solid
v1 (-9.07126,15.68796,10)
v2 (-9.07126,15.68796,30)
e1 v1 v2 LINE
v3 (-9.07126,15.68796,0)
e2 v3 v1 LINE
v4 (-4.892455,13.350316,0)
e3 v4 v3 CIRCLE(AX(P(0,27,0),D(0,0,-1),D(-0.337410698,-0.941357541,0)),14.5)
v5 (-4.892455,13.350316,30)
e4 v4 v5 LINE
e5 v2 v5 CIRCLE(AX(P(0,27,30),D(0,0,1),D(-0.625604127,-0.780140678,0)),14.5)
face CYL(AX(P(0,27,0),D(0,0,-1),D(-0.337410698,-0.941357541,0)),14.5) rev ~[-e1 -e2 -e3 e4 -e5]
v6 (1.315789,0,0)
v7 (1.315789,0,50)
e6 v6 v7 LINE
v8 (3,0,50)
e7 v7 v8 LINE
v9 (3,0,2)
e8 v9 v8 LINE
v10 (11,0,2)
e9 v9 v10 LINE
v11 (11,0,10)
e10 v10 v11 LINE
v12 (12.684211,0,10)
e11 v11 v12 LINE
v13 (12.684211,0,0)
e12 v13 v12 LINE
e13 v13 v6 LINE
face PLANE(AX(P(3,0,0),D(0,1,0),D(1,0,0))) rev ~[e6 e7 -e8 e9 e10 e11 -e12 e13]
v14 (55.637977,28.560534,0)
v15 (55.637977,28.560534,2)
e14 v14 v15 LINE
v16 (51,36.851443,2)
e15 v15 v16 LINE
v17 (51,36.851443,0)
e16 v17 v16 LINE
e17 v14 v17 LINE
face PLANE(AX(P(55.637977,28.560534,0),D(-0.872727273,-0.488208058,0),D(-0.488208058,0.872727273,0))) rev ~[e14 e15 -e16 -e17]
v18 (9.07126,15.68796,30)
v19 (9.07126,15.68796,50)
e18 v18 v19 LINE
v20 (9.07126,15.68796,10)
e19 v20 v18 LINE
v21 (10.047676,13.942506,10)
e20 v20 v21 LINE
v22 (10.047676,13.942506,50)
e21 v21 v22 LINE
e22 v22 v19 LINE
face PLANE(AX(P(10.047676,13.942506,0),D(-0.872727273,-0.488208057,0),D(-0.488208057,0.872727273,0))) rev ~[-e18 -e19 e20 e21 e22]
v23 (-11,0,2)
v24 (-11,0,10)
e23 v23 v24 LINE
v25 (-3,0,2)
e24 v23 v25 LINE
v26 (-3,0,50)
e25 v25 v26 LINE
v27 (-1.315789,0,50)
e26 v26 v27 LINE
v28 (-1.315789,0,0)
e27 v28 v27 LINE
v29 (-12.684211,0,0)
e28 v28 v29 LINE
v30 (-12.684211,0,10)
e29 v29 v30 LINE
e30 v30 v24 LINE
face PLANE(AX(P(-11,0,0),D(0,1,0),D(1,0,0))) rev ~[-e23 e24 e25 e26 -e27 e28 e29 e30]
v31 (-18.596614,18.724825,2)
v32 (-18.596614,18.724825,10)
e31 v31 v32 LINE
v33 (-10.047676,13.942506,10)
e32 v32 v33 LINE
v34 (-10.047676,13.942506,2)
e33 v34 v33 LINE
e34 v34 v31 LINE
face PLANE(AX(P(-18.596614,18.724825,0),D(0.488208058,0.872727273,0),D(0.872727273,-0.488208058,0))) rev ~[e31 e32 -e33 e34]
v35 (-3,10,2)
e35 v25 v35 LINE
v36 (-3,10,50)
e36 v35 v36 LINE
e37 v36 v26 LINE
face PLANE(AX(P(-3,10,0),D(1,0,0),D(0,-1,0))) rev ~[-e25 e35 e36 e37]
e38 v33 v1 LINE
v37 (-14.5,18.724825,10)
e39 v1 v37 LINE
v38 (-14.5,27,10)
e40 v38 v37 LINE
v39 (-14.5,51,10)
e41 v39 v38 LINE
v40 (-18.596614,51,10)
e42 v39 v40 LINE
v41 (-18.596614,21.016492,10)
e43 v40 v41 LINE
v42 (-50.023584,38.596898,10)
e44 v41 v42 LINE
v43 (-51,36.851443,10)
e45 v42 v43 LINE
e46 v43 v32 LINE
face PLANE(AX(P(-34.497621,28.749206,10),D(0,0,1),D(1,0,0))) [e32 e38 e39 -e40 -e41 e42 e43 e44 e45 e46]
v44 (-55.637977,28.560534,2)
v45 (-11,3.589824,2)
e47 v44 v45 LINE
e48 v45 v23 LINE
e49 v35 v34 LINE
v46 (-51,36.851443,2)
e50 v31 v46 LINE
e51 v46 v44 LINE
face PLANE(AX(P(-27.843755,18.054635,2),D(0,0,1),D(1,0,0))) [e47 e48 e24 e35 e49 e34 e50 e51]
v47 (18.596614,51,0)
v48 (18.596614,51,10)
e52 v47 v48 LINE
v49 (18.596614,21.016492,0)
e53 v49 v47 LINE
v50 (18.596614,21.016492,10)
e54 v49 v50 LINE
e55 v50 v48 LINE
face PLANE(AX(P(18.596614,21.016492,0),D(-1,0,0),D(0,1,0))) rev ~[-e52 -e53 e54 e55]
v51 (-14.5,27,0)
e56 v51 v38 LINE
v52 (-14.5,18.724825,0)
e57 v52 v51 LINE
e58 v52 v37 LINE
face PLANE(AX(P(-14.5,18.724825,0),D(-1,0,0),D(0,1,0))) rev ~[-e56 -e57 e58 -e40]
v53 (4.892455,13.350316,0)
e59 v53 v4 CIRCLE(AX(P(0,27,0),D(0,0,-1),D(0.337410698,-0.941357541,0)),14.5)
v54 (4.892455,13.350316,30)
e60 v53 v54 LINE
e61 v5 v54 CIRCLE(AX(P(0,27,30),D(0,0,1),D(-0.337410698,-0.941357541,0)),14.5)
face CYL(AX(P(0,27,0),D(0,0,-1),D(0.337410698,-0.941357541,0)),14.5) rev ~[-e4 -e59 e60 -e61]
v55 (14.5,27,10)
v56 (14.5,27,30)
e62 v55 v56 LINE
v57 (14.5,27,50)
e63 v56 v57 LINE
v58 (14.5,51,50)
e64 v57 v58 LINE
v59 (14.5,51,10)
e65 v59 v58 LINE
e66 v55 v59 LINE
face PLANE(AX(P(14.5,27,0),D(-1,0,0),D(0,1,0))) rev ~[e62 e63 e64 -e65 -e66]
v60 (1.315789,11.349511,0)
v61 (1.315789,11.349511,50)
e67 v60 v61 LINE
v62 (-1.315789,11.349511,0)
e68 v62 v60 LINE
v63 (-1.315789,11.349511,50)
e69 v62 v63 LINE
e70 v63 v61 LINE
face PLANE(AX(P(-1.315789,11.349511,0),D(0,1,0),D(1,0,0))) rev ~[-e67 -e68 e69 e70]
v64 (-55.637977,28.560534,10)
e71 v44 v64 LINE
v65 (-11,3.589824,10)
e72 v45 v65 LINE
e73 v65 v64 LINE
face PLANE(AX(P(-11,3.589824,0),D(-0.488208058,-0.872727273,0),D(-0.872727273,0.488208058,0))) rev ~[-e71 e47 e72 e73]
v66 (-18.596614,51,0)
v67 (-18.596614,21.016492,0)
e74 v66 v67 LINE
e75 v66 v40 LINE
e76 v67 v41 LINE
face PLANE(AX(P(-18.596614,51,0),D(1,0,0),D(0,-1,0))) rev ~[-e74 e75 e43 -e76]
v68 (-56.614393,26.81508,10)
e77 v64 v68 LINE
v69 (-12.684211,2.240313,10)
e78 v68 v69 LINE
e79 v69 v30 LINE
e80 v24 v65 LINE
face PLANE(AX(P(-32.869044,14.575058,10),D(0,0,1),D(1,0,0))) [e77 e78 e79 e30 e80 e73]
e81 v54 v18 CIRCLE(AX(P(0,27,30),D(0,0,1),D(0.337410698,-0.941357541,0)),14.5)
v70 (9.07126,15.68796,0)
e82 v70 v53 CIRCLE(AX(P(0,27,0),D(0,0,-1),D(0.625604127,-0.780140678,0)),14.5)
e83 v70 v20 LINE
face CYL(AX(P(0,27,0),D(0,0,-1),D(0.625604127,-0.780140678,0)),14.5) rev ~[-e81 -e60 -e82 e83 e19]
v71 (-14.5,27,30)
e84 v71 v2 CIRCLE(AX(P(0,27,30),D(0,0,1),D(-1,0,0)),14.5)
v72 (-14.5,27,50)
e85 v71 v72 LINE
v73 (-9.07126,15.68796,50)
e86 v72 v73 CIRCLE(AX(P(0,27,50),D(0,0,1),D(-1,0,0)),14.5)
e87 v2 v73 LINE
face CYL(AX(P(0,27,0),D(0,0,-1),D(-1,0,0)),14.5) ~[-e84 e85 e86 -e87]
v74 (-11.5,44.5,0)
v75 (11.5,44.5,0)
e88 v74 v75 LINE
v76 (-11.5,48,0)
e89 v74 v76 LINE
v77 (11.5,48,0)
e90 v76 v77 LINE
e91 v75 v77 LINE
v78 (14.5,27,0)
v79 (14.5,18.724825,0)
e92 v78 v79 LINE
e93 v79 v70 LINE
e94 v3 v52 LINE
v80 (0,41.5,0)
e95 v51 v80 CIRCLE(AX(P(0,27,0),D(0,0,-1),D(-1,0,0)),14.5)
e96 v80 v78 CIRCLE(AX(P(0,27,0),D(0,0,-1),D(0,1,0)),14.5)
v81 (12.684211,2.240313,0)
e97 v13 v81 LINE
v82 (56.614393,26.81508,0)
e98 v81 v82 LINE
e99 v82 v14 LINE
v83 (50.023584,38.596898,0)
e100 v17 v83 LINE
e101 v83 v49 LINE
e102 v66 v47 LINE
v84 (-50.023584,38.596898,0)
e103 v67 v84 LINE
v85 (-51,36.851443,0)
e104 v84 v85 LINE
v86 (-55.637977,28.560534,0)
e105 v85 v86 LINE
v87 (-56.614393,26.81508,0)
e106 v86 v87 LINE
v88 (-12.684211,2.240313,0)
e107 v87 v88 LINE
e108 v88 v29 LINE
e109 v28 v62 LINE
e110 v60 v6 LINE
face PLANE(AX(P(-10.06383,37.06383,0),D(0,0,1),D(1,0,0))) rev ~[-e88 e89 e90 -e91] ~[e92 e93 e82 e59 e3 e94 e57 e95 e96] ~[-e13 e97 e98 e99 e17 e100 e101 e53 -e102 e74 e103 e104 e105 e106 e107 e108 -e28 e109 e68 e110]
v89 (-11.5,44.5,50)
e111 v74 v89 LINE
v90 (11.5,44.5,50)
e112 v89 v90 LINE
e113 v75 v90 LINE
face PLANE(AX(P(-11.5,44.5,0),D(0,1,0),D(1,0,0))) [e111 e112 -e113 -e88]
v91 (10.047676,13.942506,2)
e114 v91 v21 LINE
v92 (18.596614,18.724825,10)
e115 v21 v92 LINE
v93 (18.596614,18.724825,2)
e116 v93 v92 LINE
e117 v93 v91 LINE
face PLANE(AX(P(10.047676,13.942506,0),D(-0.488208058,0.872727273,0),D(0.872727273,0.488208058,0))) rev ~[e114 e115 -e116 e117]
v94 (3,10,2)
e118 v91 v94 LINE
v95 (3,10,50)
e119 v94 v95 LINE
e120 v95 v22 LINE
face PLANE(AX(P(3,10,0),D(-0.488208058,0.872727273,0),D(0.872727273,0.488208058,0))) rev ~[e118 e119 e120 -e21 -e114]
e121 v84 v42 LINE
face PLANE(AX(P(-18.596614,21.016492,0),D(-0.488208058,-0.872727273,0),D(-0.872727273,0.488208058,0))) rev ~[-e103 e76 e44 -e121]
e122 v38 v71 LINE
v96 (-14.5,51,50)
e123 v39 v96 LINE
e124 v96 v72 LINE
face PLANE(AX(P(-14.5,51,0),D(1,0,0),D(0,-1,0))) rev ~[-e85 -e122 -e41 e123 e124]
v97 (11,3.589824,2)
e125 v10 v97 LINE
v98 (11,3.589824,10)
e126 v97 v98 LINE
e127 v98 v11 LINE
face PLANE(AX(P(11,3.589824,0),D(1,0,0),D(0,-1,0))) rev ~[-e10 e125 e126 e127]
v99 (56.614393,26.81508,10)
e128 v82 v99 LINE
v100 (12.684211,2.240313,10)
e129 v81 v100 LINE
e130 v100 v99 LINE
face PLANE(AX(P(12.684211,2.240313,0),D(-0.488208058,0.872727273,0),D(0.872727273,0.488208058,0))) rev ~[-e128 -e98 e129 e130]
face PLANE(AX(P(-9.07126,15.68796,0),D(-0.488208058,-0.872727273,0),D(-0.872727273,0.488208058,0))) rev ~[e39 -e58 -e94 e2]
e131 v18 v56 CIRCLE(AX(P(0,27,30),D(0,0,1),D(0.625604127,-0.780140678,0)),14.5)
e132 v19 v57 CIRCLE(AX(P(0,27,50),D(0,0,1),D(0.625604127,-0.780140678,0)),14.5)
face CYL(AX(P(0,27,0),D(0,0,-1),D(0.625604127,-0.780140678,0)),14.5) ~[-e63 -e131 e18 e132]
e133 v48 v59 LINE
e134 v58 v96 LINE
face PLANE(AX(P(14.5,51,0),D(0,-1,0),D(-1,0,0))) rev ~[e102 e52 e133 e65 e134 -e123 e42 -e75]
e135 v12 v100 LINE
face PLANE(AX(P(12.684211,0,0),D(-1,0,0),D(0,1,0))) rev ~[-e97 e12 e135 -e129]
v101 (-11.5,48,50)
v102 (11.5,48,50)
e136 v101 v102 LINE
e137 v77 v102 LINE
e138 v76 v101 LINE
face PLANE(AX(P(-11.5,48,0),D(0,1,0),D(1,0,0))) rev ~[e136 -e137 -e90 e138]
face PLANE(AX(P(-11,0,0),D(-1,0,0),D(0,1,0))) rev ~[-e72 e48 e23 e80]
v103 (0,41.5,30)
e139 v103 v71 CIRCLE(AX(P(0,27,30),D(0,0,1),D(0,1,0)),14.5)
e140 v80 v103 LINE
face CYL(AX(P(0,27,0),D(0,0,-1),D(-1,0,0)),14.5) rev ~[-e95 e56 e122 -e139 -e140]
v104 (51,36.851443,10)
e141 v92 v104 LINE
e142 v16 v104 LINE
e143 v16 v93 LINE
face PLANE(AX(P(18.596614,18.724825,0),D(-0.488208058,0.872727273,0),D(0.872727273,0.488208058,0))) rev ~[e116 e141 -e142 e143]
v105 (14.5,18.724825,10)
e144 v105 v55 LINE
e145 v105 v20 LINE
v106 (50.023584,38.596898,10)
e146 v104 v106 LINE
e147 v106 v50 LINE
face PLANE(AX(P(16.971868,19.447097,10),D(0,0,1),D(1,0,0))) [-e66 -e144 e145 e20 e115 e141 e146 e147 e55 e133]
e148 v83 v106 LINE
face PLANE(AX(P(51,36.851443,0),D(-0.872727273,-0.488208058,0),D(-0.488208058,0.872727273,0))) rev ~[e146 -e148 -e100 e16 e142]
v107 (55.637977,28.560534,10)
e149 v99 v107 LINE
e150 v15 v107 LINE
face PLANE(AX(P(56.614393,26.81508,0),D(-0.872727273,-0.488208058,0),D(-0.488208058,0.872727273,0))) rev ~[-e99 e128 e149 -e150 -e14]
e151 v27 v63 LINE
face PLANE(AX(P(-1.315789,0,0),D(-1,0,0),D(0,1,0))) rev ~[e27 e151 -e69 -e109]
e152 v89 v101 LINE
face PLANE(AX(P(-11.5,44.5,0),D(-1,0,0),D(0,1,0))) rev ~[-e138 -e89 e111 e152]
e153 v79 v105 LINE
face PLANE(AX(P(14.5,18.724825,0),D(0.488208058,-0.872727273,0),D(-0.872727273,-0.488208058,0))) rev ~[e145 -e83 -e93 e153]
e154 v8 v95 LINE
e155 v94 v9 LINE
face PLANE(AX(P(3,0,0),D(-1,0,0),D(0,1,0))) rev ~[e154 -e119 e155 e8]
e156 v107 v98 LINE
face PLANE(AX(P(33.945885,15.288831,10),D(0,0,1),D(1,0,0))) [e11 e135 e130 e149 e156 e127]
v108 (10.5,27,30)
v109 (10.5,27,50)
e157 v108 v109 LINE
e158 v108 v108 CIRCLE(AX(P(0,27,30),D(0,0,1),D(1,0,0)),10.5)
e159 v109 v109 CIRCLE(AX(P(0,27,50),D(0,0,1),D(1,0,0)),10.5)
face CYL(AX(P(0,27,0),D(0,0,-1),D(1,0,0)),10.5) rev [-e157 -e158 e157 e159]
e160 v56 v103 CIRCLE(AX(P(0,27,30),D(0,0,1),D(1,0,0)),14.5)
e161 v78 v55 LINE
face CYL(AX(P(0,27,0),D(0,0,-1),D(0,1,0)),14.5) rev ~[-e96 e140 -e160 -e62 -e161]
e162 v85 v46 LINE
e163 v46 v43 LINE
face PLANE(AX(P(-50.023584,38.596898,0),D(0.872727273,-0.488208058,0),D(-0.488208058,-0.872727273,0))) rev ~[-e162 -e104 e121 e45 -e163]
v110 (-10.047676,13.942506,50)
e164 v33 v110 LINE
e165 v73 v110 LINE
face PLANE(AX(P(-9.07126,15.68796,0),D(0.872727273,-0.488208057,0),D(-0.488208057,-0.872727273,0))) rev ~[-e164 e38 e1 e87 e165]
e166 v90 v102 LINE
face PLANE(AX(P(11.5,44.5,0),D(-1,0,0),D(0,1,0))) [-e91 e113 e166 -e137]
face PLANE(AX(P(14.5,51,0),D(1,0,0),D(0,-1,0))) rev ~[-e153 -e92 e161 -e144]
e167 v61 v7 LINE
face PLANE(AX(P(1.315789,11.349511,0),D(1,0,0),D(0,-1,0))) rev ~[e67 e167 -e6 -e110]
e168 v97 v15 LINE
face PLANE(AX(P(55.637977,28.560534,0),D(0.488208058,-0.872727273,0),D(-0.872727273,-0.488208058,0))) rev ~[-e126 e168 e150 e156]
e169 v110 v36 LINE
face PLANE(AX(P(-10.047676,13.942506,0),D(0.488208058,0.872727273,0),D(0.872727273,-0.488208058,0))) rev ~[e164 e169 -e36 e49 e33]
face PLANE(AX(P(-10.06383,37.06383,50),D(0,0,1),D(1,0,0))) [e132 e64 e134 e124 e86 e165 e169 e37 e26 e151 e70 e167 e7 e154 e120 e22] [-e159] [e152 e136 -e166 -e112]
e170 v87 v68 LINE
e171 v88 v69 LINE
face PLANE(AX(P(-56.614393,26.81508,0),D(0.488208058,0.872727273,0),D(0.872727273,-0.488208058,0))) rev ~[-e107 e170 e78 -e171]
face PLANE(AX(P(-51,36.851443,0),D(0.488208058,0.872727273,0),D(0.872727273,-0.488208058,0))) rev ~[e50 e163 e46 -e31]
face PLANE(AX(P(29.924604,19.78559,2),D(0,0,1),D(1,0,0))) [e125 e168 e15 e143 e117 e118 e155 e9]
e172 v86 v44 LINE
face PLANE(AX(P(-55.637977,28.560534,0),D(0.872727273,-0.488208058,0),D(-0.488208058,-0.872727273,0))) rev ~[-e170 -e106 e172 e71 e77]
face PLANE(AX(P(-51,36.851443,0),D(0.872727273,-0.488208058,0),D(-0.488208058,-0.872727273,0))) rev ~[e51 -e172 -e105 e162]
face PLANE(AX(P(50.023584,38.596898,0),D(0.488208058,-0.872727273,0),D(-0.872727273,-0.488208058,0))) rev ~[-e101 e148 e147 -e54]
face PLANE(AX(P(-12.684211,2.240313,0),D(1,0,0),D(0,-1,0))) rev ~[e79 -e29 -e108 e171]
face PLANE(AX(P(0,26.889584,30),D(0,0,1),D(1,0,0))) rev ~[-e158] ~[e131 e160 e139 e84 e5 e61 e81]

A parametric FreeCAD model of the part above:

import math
import FreeCAD as App
import Part
import Sketcher
Q = App.Units.Quantity

doc = App.newDocument("Part")
params = doc.addObject("Spreadsheet::Sheet", "Params")
for row, (alias, value) in enumerate([
    ("sketch1_length", "2 mm"),
    ("pad1_length", "10 mm"),
    ("sketch2_length", "2 mm"),
    ("pad2_length", "10 mm"),
    ("sketch3_length", "2 mm"),
    ("pad3_length", "10 mm"),
    ("sketch4_length", "2 mm"),
    ("pad4_length", "10 mm"),
    ("sketch5_width", "8 mm"),
    ("sketch5_height", "10 mm"),
    ("sketch5_length", "9.5 mm"),
    ("pad5_length", "2 mm"),
    ("sketch6_width", "8 mm"),
    ("sketch6_height", "10 mm"),
    ("sketch6_length", "9.5 mm"),
    ("pad6_length", "2 mm"),
    ("sketch7_diameter", "21 mm"),
    ("sketch7_radius", "14.5 mm"),
    ("pad7_length", "50 mm"),
    ("sketch8_diameter", "21 mm"),
    ("sketch8_radius", "14.5 mm"),
    ("pocket1_length", "30 mm"),
    ("sketch9_radius", "14.5 mm"),
    ("sketch9_width", "23 mm"),
    ("sketch9_height", "24 mm"),
    ("sketch9_height2", "10 mm"),
    ("sketch9_length", "2 mm"),
    ("pad8_length", "50 mm"),
], start=1):
    params.set(f"A{row}", alias)
    params.set(f"B{row}", "=" + value)
    params.setAlias(f"B{row}", alias)

body = doc.addObject("PartDesign::Body", "Body")

# Sketch on XY plane
sketch1 = body.newObject("Sketcher::SketchObject", "Sketch")
sketch1.AttachmentSupport = (doc.getObject("XY_Plane"), [""])
sketch1.MapMode = "FlatFace"
sketch1.addGeometry([
    Part.LineSegment(App.Vector(-12.684211, 0, 0), App.Vector(-11, 0, 0)),  # 0
    Part.LineSegment(App.Vector(-11, 0, 0), App.Vector(-11, 3.589824, 0)),  # 1
    Part.LineSegment(App.Vector(-11, 3.589824, 0), App.Vector(-55.637977, 28.560534, 0)),  # 2
    Part.LineSegment(App.Vector(-55.637977, 28.560534, 0), App.Vector(-56.614393, 26.81508, 0)),  # 3
    Part.LineSegment(App.Vector(-56.614393, 26.81508, 0), App.Vector(-12.684211, 2.240313, 0)),  # 4
    Part.LineSegment(App.Vector(-12.684211, 2.240313, 0), App.Vector(-12.684211, 0, 0)),  # 5
], False)
sketch1.addConstraint([
    Sketcher.Constraint("Coincident", 0, 2, 1, 1),
    Sketcher.Constraint("Coincident", 1, 2, 2, 1),
    Sketcher.Constraint("Coincident", 2, 2, 3, 1),
    Sketcher.Constraint("Coincident", 3, 2, 4, 1),
    Sketcher.Constraint("Coincident", 4, 2, 5, 1),
    Sketcher.Constraint("Coincident", 5, 2, 0, 1),
    Sketcher.Constraint("Horizontal", 0),
    Sketcher.Constraint("Vertical", 1),
    Sketcher.Constraint("Vertical", 5),
    Sketcher.Constraint("PointOnObject", 0, 2, -1),
    Sketcher.Constraint("Perpendicular", 2, 3),
    Sketcher.Constraint("Perpendicular", 3, 4),
    Sketcher.Constraint("Distance", 3, Q("2 mm")),
    Sketcher.Constraint("DistanceX", 0, 2, -1, 1, Q("11 mm")),
    Sketcher.Constraint("DistanceX", 0, 1, 0, 2, Q("1.684211 mm")),
    Sketcher.Constraint("Distance", 2, Q("51.147681 mm")),
    Sketcher.Constraint("DistanceY", 1, 1, 1, 2, Q("3.589824 mm")),
    Sketcher.Constraint("DistanceY", 5, 2, 5, 1, Q("2.240313 mm")),
])
sketch1.setExpression("Constraints[12]", "Params.sketch1_length")
pad1 = body.newObject("PartDesign::Pad", "Pad")
pad1.Profile = sketch1
pad1.setExpression("Length", "Params.pad1_length")
body2 = doc.addObject("PartDesign::Body", "Body001")

# Sketch on XY plane
sketch2 = body2.newObject("Sketcher::SketchObject", "Sketch001")
sketch2.AttachmentSupport = (doc.getObject("XY_Plane001"), [""])
sketch2.MapMode = "FlatFace"
sketch2.addGeometry([
    Part.LineSegment(App.Vector(-51, 36.9, 0), App.Vector(-18.6, 18.7, 0)),  # 0
    Part.LineSegment(App.Vector(-18.6, 18.7, 0), App.Vector(-10, 13.9, 0)),  # 1
    Part.LineSegment(App.Vector(-10, 13.9, 0), App.Vector(-9.1, 15.7, 0)),  # 2
    Part.LineSegment(App.Vector(-9.1, 15.7, 0), App.Vector(-14.5, 18.7, 0)),  # 3
    Part.LineSegment(App.Vector(-14.5, 18.7, 0), App.Vector(-14.5, 51, 0)),  # 4
    Part.LineSegment(App.Vector(-14.5, 51, 0), App.Vector(-18.6, 51, 0)),  # 5
    Part.LineSegment(App.Vector(-18.6, 51, 0), App.Vector(-18.6, 21, 0)),  # 6
    Part.LineSegment(App.Vector(-18.6, 21, 0), App.Vector(-50, 38.6, 0)),  # 7
    Part.LineSegment(App.Vector(-50, 38.6, 0), App.Vector(-51, 36.9, 0)),  # 8
], False)
sketch2.addConstraint([
    Sketcher.Constraint("Coincident", 0, 2, 1, 1),
    Sketcher.Constraint("Coincident", 1, 2, 2, 1),
    Sketcher.Constraint("Coincident", 2, 2, 3, 1),
    Sketcher.Constraint("Coincident", 3, 2, 4, 1),
    Sketcher.Constraint("Coincident", 4, 2, 5, 1),
    Sketcher.Constraint("Coincident", 5, 2, 6, 1),
    Sketcher.Constraint("Coincident", 6, 2, 7, 1),
    Sketcher.Constraint("Coincident", 7, 2, 8, 1),
    Sketcher.Constraint("Coincident", 8, 2, 0, 1),
    Sketcher.Constraint("Vertical", 4),
    Sketcher.Constraint("Horizontal", 5),
    Sketcher.Constraint("Vertical", 6),
    Sketcher.Constraint("Parallel", 0, 1),
    Sketcher.Constraint("Perpendicular", 1, 2),
    Sketcher.Constraint("Perpendicular", 2, 3),
    Sketcher.Constraint("Parallel", 3, 7),
    Sketcher.Constraint("Perpendicular", 7, 8),
    Sketcher.Constraint("Horizontal", 0, 2, 3, 2),
    Sketcher.Constraint("Vertical", 0, 2, 5, 2),
    Sketcher.Constraint("Equal", 2, 8),
    Sketcher.Constraint("Distance", 2, Q("2 mm")),
    Sketcher.Constraint("DistanceY", -1, 1, 4, 2, Q("51 mm")),
    Sketcher.Constraint("DistanceX", 8, 2, -1, 1, Q("51 mm")),
    Sketcher.Constraint("DistanceX", 3, 2, -1, 1, Q("14.5 mm")),
    Sketcher.Constraint("DistanceY", 6, 2, 6, 1, Q("29.983508 mm")),
    Sketcher.Constraint("Distance", 0, Q("37.12888 mm")),
    Sketcher.Constraint("Distance", 1, Q("9.795658 mm")),
])
sketch2.setExpression("Constraints[20]", "Params.sketch2_length")
pad2 = body2.newObject("PartDesign::Pad", "Pad001")
pad2.Profile = sketch2
pad2.setExpression("Length", "Params.pad2_length")
body3 = doc.addObject("PartDesign::Body", "Body002")

# Sketch on XY plane
sketch3 = body3.newObject("Sketcher::SketchObject", "Sketch002")
sketch3.AttachmentSupport = (doc.getObject("XY_Plane002"), [""])
sketch3.MapMode = "FlatFace"
sketch3.addGeometry([
    Part.LineSegment(App.Vector(18.6, 18.7, 0), App.Vector(51, 36.9, 0)),  # 0
    Part.LineSegment(App.Vector(51, 36.9, 0), App.Vector(50, 38.6, 0)),  # 1
    Part.LineSegment(App.Vector(50, 38.6, 0), App.Vector(18.6, 21, 0)),  # 2
    Part.LineSegment(App.Vector(18.6, 21, 0), App.Vector(18.6, 51, 0)),  # 3
    Part.LineSegment(App.Vector(18.6, 51, 0), App.Vector(14.5, 51, 0)),  # 4
    Part.LineSegment(App.Vector(14.5, 51, 0), App.Vector(14.5, 18.7, 0)),  # 5
    Part.LineSegment(App.Vector(14.5, 18.7, 0), App.Vector(9.1, 15.7, 0)),  # 6
    Part.LineSegment(App.Vector(9.1, 15.7, 0), App.Vector(10, 13.9, 0)),  # 7
    Part.LineSegment(App.Vector(10, 13.9, 0), App.Vector(18.6, 18.7, 0)),  # 8
], False)
sketch3.addConstraint([
    Sketcher.Constraint("Coincident", 0, 2, 1, 1),
    Sketcher.Constraint("Coincident", 1, 2, 2, 1),
    Sketcher.Constraint("Coincident", 2, 2, 3, 1),
    Sketcher.Constraint("Coincident", 3, 2, 4, 1),
    Sketcher.Constraint("Coincident", 4, 2, 5, 1),
    Sketcher.Constraint("Coincident", 5, 2, 6, 1),
    Sketcher.Constraint("Coincident", 6, 2, 7, 1),
    Sketcher.Constraint("Coincident", 7, 2, 8, 1),
    Sketcher.Constraint("Coincident", 8, 2, 0, 1),
    Sketcher.Constraint("Vertical", 3),
    Sketcher.Constraint("Horizontal", 4),
    Sketcher.Constraint("Vertical", 5),
    Sketcher.Constraint("Perpendicular", 0, 1),
    Sketcher.Constraint("Perpendicular", 1, 2),
    Sketcher.Constraint("Parallel", 2, 6),
    Sketcher.Constraint("Perpendicular", 6, 7),
    Sketcher.Constraint("Perpendicular", 7, 8),
    Sketcher.Constraint("Horizontal", 5, 2, 8, 2),
    Sketcher.Constraint("Vertical", 3, 2, 8, 2),
    Sketcher.Constraint("Equal", 1, 7),
    Sketcher.Constraint("Distance", 1, Q("2 mm")),
    Sketcher.Constraint("DistanceX", -1, 1, 0, 2, Q("51 mm")),
    Sketcher.Constraint("DistanceY", -1, 1, 3, 2, Q("51 mm")),
    Sketcher.Constraint("DistanceX", -1, 1, 4, 2, Q("14.5 mm")),
    Sketcher.Constraint("DistanceY", 3, 1, 3, 2, Q("29.983508 mm")),
    Sketcher.Constraint("Distance", 0, Q("37.12888 mm")),
    Sketcher.Constraint("Distance", 6, Q("6.220431 mm")),
])
sketch3.setExpression("Constraints[20]", "Params.sketch3_length")
pad3 = body3.newObject("PartDesign::Pad", "Pad002")
pad3.Profile = sketch3
pad3.setExpression("Length", "Params.pad3_length")
body4 = doc.addObject("PartDesign::Body", "Body003")

# Sketch on XY plane
sketch4 = body4.newObject("Sketcher::SketchObject", "Sketch003")
sketch4.AttachmentSupport = (doc.getObject("XY_Plane003"), [""])
sketch4.MapMode = "FlatFace"
sketch4.addGeometry([
    Part.LineSegment(App.Vector(55.637977, 28.560534, 0), App.Vector(11, 3.589824, 0)),  # 0
    Part.LineSegment(App.Vector(11, 3.589824, 0), App.Vector(11, 0, 0)),  # 1
    Part.LineSegment(App.Vector(11, 0, 0), App.Vector(12.684211, 0, 0)),  # 2
    Part.LineSegment(App.Vector(12.684211, 0, 0), App.Vector(12.684211, 2.240313, 0)),  # 3
    Part.LineSegment(App.Vector(12.684211, 2.240313, 0), App.Vector(56.614393, 26.81508, 0)),  # 4
    Part.LineSegment(App.Vector(56.614393, 26.81508, 0), App.Vector(55.637977, 28.560534, 0)),  # 5
], False)
sketch4.addConstraint([
    Sketcher.Constraint("Coincident", 0, 2, 1, 1),
    Sketcher.Constraint("Coincident", 1, 2, 2, 1),
    Sketcher.Constraint("Coincident", 2, 2, 3, 1),
    Sketcher.Constraint("Coincident", 3, 2, 4, 1),
    Sketcher.Constraint("Coincident", 4, 2, 5, 1),
    Sketcher.Constraint("Coincident", 5, 2, 0, 1),
    Sketcher.Constraint("Vertical", 1),
    Sketcher.Constraint("Horizontal", 2),
    Sketcher.Constraint("Vertical", 3),
    Sketcher.Constraint("PointOnObject", 1, 2, -1),
    Sketcher.Constraint("Parallel", 0, 4),
    Sketcher.Constraint("Perpendicular", 4, 5),
    Sketcher.Constraint("Distance", 5, Q("2 mm")),
    Sketcher.Constraint("DistanceX", -1, 1, 0, 2, Q("11 mm")),
    Sketcher.Constraint("DistanceX", 2, 1, 2, 2, Q("1.684211 mm")),
    Sketcher.Constraint("Distance", 0, Q("51.147681 mm")),
    Sketcher.Constraint("DistanceY", 1, 2, 1, 1, Q("3.589824 mm")),
    Sketcher.Constraint("DistanceY", 3, 1, 3, 2, Q("2.240313 mm")),
])
sketch4.setExpression("Constraints[12]", "Params.sketch4_length")
pad4 = body4.newObject("PartDesign::Pad", "Pad003")
pad4.Profile = sketch4
pad4.setExpression("Length", "Params.pad4_length")
body.AllowCompound = True
doc.recompute()

boolean = body.newObject("PartDesign::Boolean", "Boolean")
boolean.Type = "Fuse"
boolean.addObjects([body2])

# Sketch on XY plane
sketch5 = body.newObject("Sketcher::SketchObject", "Sketch004")
sketch5.AttachmentSupport = (doc.getObject("XY_Plane"), [""])
sketch5.MapMode = "FlatFace"
sketch5.addGeometry([
    Part.LineSegment(App.Vector(-11, 0, 0), App.Vector(-3, 0, 0)),  # 0
    Part.LineSegment(App.Vector(-3, 0, 0), App.Vector(-3, 10, 0)),  # 1
    Part.LineSegment(App.Vector(-3, 10, 0), App.Vector(-10, 13.9, 0)),  # 2
    Part.LineSegment(App.Vector(-10, 13.9, 0), App.Vector(-18.6, 18.7, 0)),  # 3
    Part.LineSegment(App.Vector(-18.6, 18.7, 0), App.Vector(-51, 36.9, 0)),  # 4
    Part.LineSegment(App.Vector(-51, 36.9, 0), App.Vector(-55.6, 28.6, 0)),  # 5
    Part.LineSegment(App.Vector(-55.6, 28.6, 0), App.Vector(-11, 3.6, 0)),  # 6
    Part.LineSegment(App.Vector(-11, 3.6, 0), App.Vector(-11, 0, 0)),  # 7
], False)
sketch5.addConstraint([
    Sketcher.Constraint("Coincident", 0, 2, 1, 1),
    Sketcher.Constraint("Coincident", 1, 2, 2, 1),
    Sketcher.Constraint("Coincident", 2, 2, 3, 1),
    Sketcher.Constraint("Coincident", 3, 2, 4, 1),
    Sketcher.Constraint("Coincident", 4, 2, 5, 1),
    Sketcher.Constraint("Coincident", 5, 2, 6, 1),
    Sketcher.Constraint("Coincident", 6, 2, 7, 1),
    Sketcher.Constraint("Coincident", 7, 2, 0, 1),
    Sketcher.Constraint("Horizontal", 0),
    Sketcher.Constraint("Vertical", 1),
    Sketcher.Constraint("Vertical", 7),
    Sketcher.Constraint("PointOnObject", 0, 2, -1),
    Sketcher.Constraint("Parallel", 2, 3),
    Sketcher.Constraint("Parallel", 3, 4),
    Sketcher.Constraint("Perpendicular", 4, 5),
    Sketcher.Constraint("Perpendicular", 5, 6),
    Sketcher.Constraint("DistanceX", 0, 1, 0, 2, Q("8 mm")),
    Sketcher.Constraint("DistanceY", 1, 1, 1, 2, Q("10 mm")),
    Sketcher.Constraint("DistanceX", 0, 2, -1, 1, Q("3 mm")),
    Sketcher.Constraint("DistanceX", 4, 2, -1, 1, Q("51 mm")),
    Sketcher.Constraint("Distance", 5, Q("9.5 mm")),
    Sketcher.Constraint("DistanceY", 6, 2, 3, 2, Q("15.135001 mm")),
    Sketcher.Constraint("DistanceX", 5, 2, 2, 2, Q("45.590301 mm")),
    Sketcher.Constraint("Distance", 3, Q("9.795658 mm")),
])
sketch5.setExpression("Constraints[16]", "Params.sketch5_width")
sketch5.setExpression("Constraints[17]", "Params.sketch5_height")
sketch5.setExpression("Constraints[20]", "Params.sketch5_length")
pad5 = body.newObject("PartDesign::Pad", "Pad004")
pad5.Profile = sketch5
pad5.setExpression("Length", "Params.pad5_length")
body3.AllowCompound = True
doc.recompute()

boolean2 = body3.newObject("PartDesign::Boolean", "Boolean001")
boolean2.Type = "Fuse"
boolean2.addObjects([body4])

# Sketch on XY plane
sketch6 = body3.newObject("Sketcher::SketchObject", "Sketch005")
sketch6.AttachmentSupport = (doc.getObject("XY_Plane002"), [""])
sketch6.MapMode = "FlatFace"
sketch6.addGeometry([
    Part.LineSegment(App.Vector(10, 13.9, 0), App.Vector(3, 10, 0)),  # 0
    Part.LineSegment(App.Vector(3, 10, 0), App.Vector(3, 0, 0)),  # 1
    Part.LineSegment(App.Vector(3, 0, 0), App.Vector(11, 0, 0)),  # 2
    Part.LineSegment(App.Vector(11, 0, 0), App.Vector(11, 3.6, 0)),  # 3
    Part.LineSegment(App.Vector(11, 3.6, 0), App.Vector(55.6, 28.6, 0)),  # 4
    Part.LineSegment(App.Vector(55.6, 28.6, 0), App.Vector(51, 36.9, 0)),  # 5
    Part.LineSegment(App.Vector(51, 36.9, 0), App.Vector(18.6, 18.7, 0)),  # 6
    Part.LineSegment(App.Vector(18.6, 18.7, 0), App.Vector(10, 13.9, 0)),  # 7
], False)
sketch6.addConstraint([
    Sketcher.Constraint("Coincident", 0, 2, 1, 1),
    Sketcher.Constraint("Coincident", 1, 2, 2, 1),
    Sketcher.Constraint("Coincident", 2, 2, 3, 1),
    Sketcher.Constraint("Coincident", 3, 2, 4, 1),
    Sketcher.Constraint("Coincident", 4, 2, 5, 1),
    Sketcher.Constraint("Coincident", 5, 2, 6, 1),
    Sketcher.Constraint("Coincident", 6, 2, 7, 1),
    Sketcher.Constraint("Coincident", 7, 2, 0, 1),
    Sketcher.Constraint("Vertical", 1),
    Sketcher.Constraint("Horizontal", 2),
    Sketcher.Constraint("Vertical", 3),
    Sketcher.Constraint("PointOnObject", 1, 2, -1),
    Sketcher.Constraint("Parallel", 0, 4),
    Sketcher.Constraint("Perpendicular", 4, 5),
    Sketcher.Constraint("Perpendicular", 5, 6),
    Sketcher.Constraint("Parallel", 6, 7),
    Sketcher.Constraint("DistanceX", 2, 1, 2, 2, Q("8 mm")),
    Sketcher.Constraint("DistanceY", 1, 2, 1, 1, Q("10 mm")),
    Sketcher.Constraint("DistanceX", -1, 1, 0, 2, Q("3 mm")),
    Sketcher.Constraint("DistanceX", -1, 1, 5, 2, Q("51 mm")),
    Sketcher.Constraint("Distance", 5, Q("9.5 mm")),
    Sketcher.Constraint("DistanceY", 3, 2, 6, 2, Q("15.135001 mm")),
    Sketcher.Constraint("Distance", 4, Q("51.147681 mm")),
    Sketcher.Constraint("Distance", 7, Q("9.795658 mm")),
])
sketch6.setExpression("Constraints[16]", "Params.sketch6_width")
sketch6.setExpression("Constraints[17]", "Params.sketch6_height")
sketch6.setExpression("Constraints[20]", "Params.sketch6_length")
pad6 = body3.newObject("PartDesign::Pad", "Pad005")
pad6.Profile = sketch6
pad6.setExpression("Length", "Params.pad6_length")
body.AllowCompound = True
doc.recompute()

boolean3 = body.newObject("PartDesign::Boolean", "Boolean002")
boolean3.Type = "Fuse"
boolean3.addObjects([body3])

# Sketch on XY plane
sketch7 = body.newObject("Sketcher::SketchObject", "Sketch006")
sketch7.AttachmentSupport = (doc.getObject("XY_Plane"), [""])
sketch7.MapMode = "FlatFace"
sketch7.addGeometry([
    Part.ArcOfCircle(Part.Circle(App.Vector(0, 27, 0), App.Vector(0, 0, 1), 14.5), math.radians(180), math.radians(231)),  # 0
    Part.ArcOfCircle(Part.Circle(App.Vector(0, 27, 0), App.Vector(0, 0, 1), 14.5), math.radians(-128.73), math.radians(-109.72)),  # 1
    Part.ArcOfCircle(Part.Circle(App.Vector(0, 27, 0), App.Vector(0, 0, 1), 14.5), math.radians(-110), math.radians(-70)),  # 2
    Part.ArcOfCircle(Part.Circle(App.Vector(0, 27, 0), App.Vector(0, 0, 1), 14.5), math.radians(-70.28), math.radians(-51.27)),  # 3
    Part.ArcOfCircle(Part.Circle(App.Vector(0, 27, 0), App.Vector(0, 0, 1), 14.5), math.radians(-51), math.radians(0)),  # 4
    Part.ArcOfCircle(Part.Circle(App.Vector(0, 27, 0), App.Vector(0, 0, 1), 14.5), math.radians(0), math.radians(90)),  # 5
    Part.ArcOfCircle(Part.Circle(App.Vector(0, 27, 0), App.Vector(0, 0, 1), 14.5), math.radians(90), math.radians(180)),  # 6
    Part.Circle(App.Vector(0, 27, 0), App.Vector(0, 0, 1), 10.5),  # 7
], False)
sketch7.addConstraint([
    Sketcher.Constraint("Tangent", 0, 2, 1, 1),
    Sketcher.Constraint("Tangent", 1, 2, 2, 1),
    Sketcher.Constraint("Tangent", 2, 2, 3, 1),
    Sketcher.Constraint("Tangent", 3, 2, 4, 1),
    Sketcher.Constraint("Tangent", 4, 2, 5, 1),
    Sketcher.Constraint("Tangent", 5, 2, 6, 1),
    Sketcher.Constraint("Tangent", 6, 2, 0, 1),
    Sketcher.Constraint("Coincident", 2, 3, 0, 3),
    Sketcher.Constraint("Coincident", 4, 3, 0, 3),
    Sketcher.Constraint("Coincident", 7, 3, 0, 3),
    Sketcher.Constraint("Symmetric", 1, 2, 2, 2, -2),
    Sketcher.Constraint("PointOnObject", 5, 2, -2),
    Sketcher.Constraint("Horizontal", 0, 2, 3, 2),
    Sketcher.Constraint("Horizontal", 7, 3, 4, 2),
    Sketcher.Constraint("Horizontal", 4, 2, 6, 2),
    Sketcher.Constraint("Diameter", 7, Q("21 mm")),
    Sketcher.Constraint("Radius", 0, Q("14.5 mm")),
    Sketcher.Constraint("DistanceY", -1, 1, 0, 3, Q("27 mm")),
    Sketcher.Constraint("DistanceX", 0, 2, -1, 1, Q("9.07126 mm")),
    Sketcher.Constraint("DistanceX", 1, 2, 2, 2, Q("9.78491 mm")),
])
sketch7.setExpression("Constraints[15]", "Params.sketch7_diameter")
sketch7.setExpression("Constraints[16]", "Params.sketch7_radius")
pad7 = body.newObject("PartDesign::Pad", "Pad006")
pad7.Profile = sketch7
pad7.setExpression("Length", "Params.pad7_length")

# Sketch on XY plane
sketch8 = body.newObject("Sketcher::SketchObject", "Sketch007")
sketch8.AttachmentSupport = (doc.getObject("XY_Plane"), [""])
sketch8.MapMode = "FlatFace"
sketch8.addGeometry([
    Part.ArcOfCircle(Part.Circle(App.Vector(0, 27, 0), App.Vector(0, 0, 1), 14.5), math.radians(180), math.radians(231)),  # 0
    Part.ArcOfCircle(Part.Circle(App.Vector(0, 27, 0), App.Vector(0, 0, 1), 14.5), math.radians(-128.73), math.radians(-109.72)),  # 1
    Part.ArcOfCircle(Part.Circle(App.Vector(0, 27, 0), App.Vector(0, 0, 1), 14.5), math.radians(-110), math.radians(-70)),  # 2
    Part.ArcOfCircle(Part.Circle(App.Vector(0, 27, 0), App.Vector(0, 0, 1), 14.5), math.radians(-70.28), math.radians(-51.27)),  # 3
    Part.ArcOfCircle(Part.Circle(App.Vector(0, 27, 0), App.Vector(0, 0, 1), 14.5), math.radians(-51), math.radians(0)),  # 4
    Part.ArcOfCircle(Part.Circle(App.Vector(0, 27, 0), App.Vector(0, 0, 1), 14.5), math.radians(0), math.radians(90)),  # 5
    Part.ArcOfCircle(Part.Circle(App.Vector(0, 27, 0), App.Vector(0, 0, 1), 14.5), math.radians(90), math.radians(180)),  # 6
    Part.Circle(App.Vector(0, 27, 0), App.Vector(0, 0, 1), 10.5),  # 7
], False)
sketch8.addConstraint([
    Sketcher.Constraint("Tangent", 0, 2, 1, 1),
    Sketcher.Constraint("Tangent", 1, 2, 2, 1),
    Sketcher.Constraint("Tangent", 2, 2, 3, 1),
    Sketcher.Constraint("Tangent", 3, 2, 4, 1),
    Sketcher.Constraint("Tangent", 4, 2, 5, 1),
    Sketcher.Constraint("Tangent", 5, 2, 6, 1),
    Sketcher.Constraint("Tangent", 6, 2, 0, 1),
    Sketcher.Constraint("Coincident", 2, 3, 0, 3),
    Sketcher.Constraint("Coincident", 4, 3, 0, 3),
    Sketcher.Constraint("Coincident", 7, 3, 0, 3),
    Sketcher.Constraint("Symmetric", 1, 2, 2, 2, -2),
    Sketcher.Constraint("PointOnObject", 5, 2, -2),
    Sketcher.Constraint("Horizontal", 0, 2, 3, 2),
    Sketcher.Constraint("Horizontal", 7, 3, 4, 2),
    Sketcher.Constraint("Horizontal", 4, 2, 6, 2),
    Sketcher.Constraint("Diameter", 7, Q("21 mm")),
    Sketcher.Constraint("Radius", 0, Q("14.5 mm")),
    Sketcher.Constraint("DistanceY", -1, 1, 0, 3, Q("27 mm")),
    Sketcher.Constraint("DistanceX", 0, 2, -1, 1, Q("9.07126 mm")),
    Sketcher.Constraint("DistanceX", 1, 2, 2, 2, Q("9.78491 mm")),
])
sketch8.setExpression("Constraints[15]", "Params.sketch8_diameter")
sketch8.setExpression("Constraints[16]", "Params.sketch8_radius")
pocket1 = body.newObject("PartDesign::Pocket", "Pocket")
pocket1.Profile = sketch8
pocket1.setExpression("Length", "Params.pocket1_length")
pocket1.Reversed = True

# Sketch on XY plane
sketch9 = body.newObject("Sketcher::SketchObject", "Sketch008")
sketch9.AttachmentSupport = (doc.getObject("XY_Plane"), [""])
sketch9.MapMode = "FlatFace"
sketch9.addGeometry([
    Part.ArcOfCircle(Part.Circle(App.Vector(0, 27, 0), App.Vector(0, 0, 1), 14.5), math.radians(90), math.radians(180)),  # 0
    Part.ArcOfCircle(Part.Circle(App.Vector(0, 27, 0), App.Vector(0, 0, 1), 14.5), math.radians(0), math.radians(90)),  # 1
    Part.LineSegment(App.Vector(14.5, 27, 0), App.Vector(14.5, 51, 0)),  # 2
    Part.LineSegment(App.Vector(14.5, 51, 0), App.Vector(-14.5, 51, 0)),  # 3
    Part.LineSegment(App.Vector(-14.5, 51, 0), App.Vector(-14.5, 27, 0)),  # 4
    Part.LineSegment(App.Vector(11.5, 44.5, 0), App.Vector(-11.5, 44.5, 0)),  # 5
    Part.LineSegment(App.Vector(-11.5, 44.5, 0), App.Vector(-11.5, 48, 0)),  # 6
    Part.LineSegment(App.Vector(-11.5, 48, 0), App.Vector(11.5, 48, 0)),  # 7
    Part.LineSegment(App.Vector(11.5, 48, 0), App.Vector(11.5, 44.5, 0)),  # 8
    Part.LineSegment(App.Vector(-1.3, 11.3, 0), App.Vector(1.3, 11.3, 0)),  # 9
    Part.LineSegment(App.Vector(1.3, 11.3, 0), App.Vector(1.3, 0, 0)),  # 10
    Part.LineSegment(App.Vector(1.3, 0, 0), App.Vector(3, 0, 0)),  # 11
    Part.LineSegment(App.Vector(3, 0, 0), App.Vector(3, 10, 0)),  # 12
    Part.LineSegment(App.Vector(3, 10, 0), App.Vector(10, 13.9, 0)),  # 13
    Part.LineSegment(App.Vector(10, 13.9, 0), App.Vector(9.1, 15.7, 0)),  # 14
    Part.ArcOfCircle(Part.Circle(App.Vector(0, 27, 0), App.Vector(0, 0, 1), 14.5), math.radians(-70.28), math.radians(-51.27)),  # 15
    Part.ArcOfCircle(Part.Circle(App.Vector(0, 27, 0), App.Vector(0, 0, 1), 14.5), math.radians(-110), math.radians(-70)),  # 16
    Part.ArcOfCircle(Part.Circle(App.Vector(0, 27, 0), App.Vector(0, 0, 1), 14.5), math.radians(-128.73), math.radians(-109.72)),  # 17
    Part.LineSegment(App.Vector(-9.1, 15.7, 0), App.Vector(-10, 13.9, 0)),  # 18
    Part.LineSegment(App.Vector(-10, 13.9, 0), App.Vector(-3, 10, 0)),  # 19
    Part.LineSegment(App.Vector(-3, 10, 0), App.Vector(-3, 0, 0)),  # 20
    Part.LineSegment(App.Vector(-3, 0, 0), App.Vector(-1.3, 0, 0)),  # 21
    Part.LineSegment(App.Vector(-1.3, 0, 0), App.Vector(-1.3, 11.3, 0)),  # 22
], False)
sketch9.addConstraint([
    Sketcher.Constraint("Tangent", 0, 1, 1, 2),
    Sketcher.Constraint("Tangent", 1, 1, 2, 1),
    Sketcher.Constraint("Coincident", 2, 2, 3, 1),
    Sketcher.Constraint("Coincident", 3, 2, 4, 1),
    Sketcher.Constraint("Tangent", 4, 2, 0, 2),
    Sketcher.Constraint("Coincident", 5, 2, 6, 1),
    Sketcher.Constraint("Coincident", 6, 2, 7, 1),
    Sketcher.Constraint("Coincident", 7, 2, 8, 1),
    Sketcher.Constraint("Coincident", 8, 2, 5, 1),
    Sketcher.Constraint("Coincident", 9, 2, 10, 1),
    Sketcher.Constraint("Coincident", 10, 2, 11, 1),
    Sketcher.Constraint("Coincident", 11, 2, 12, 1),
    Sketcher.Constraint("Coincident", 12, 2, 13, 1),
    Sketcher.Constraint("Coincident", 13, 2, 14, 1),
    Sketcher.Constraint("Coincident", 14, 2, 15, 2),
    Sketcher.Constraint("Tangent", 15, 1, 16, 2),
    Sketcher.Constraint("Tangent", 16, 1, 17, 2),
    Sketcher.Constraint("Coincident", 17, 1, 18, 1),
    Sketcher.Constraint("Coincident", 18, 2, 19, 1),
    Sketcher.Constraint("Coincident", 19, 2, 20, 1),
    Sketcher.Constraint("Coincident", 20, 2, 21, 1),
    Sketcher.Constraint("Coincident", 21, 2, 22, 1),
    Sketcher.Constraint("Coincident", 22, 2, 9, 1),
    Sketcher.Constraint("Vertical", 2),
    Sketcher.Constraint("Horizontal", 3),
    Sketcher.Constraint("Vertical", 4),
    Sketcher.Constraint("Horizontal", 5),
    Sketcher.Constraint("Vertical", 6),
    Sketcher.Constraint("Horizontal", 7),
    Sketcher.Constraint("Vertical", 8),
    Sketcher.Constraint("Horizontal", 9),
    Sketcher.Constraint("Vertical", 10),
    Sketcher.Constraint("Horizontal", 11),
    Sketcher.Constraint("Vertical", 12),
    Sketcher.Constraint("Vertical", 20),
    Sketcher.Constraint("Horizontal", 21),
    Sketcher.Constraint("Vertical", 22),
    Sketcher.Constraint("Coincident", 15, 3, 0, 3),
    Sketcher.Constraint("Coincident", 17, 3, 0, 3),
    Sketcher.Constraint("Equal", 0, 1),
    Sketcher.Constraint("Equal", 1, 15),
    Sketcher.Constraint("Symmetric", 11, 2, 20, 2, -1, 1),
    Sketcher.Constraint("Symmetric", 15, 1, 16, 1, -2),
    Sketcher.Constraint("Symmetric", 13, 2, 18, 2, -2),
    Sketcher.Constraint("Symmetric", 10, 2, 21, 2, -2),
    Sketcher.Constraint("PointOnObject", 0, 1, -2),
    Sketcher.Constraint("Perpendicular", 13, 14),
    Sketcher.Constraint("Perpendicular", 18, 19),
    Sketcher.Constraint("Horizontal", 14, 2, 17, 1),
    Sketcher.Constraint("Radius", 0, Q("14.5 mm")),
    Sketcher.Constraint("DistanceX", 5, 2, 5, 1, Q("23 mm")),
    Sketcher.Constraint("DistanceY", 2, 1, 2, 2, Q("24 mm")),
    Sketcher.Constraint("DistanceY", 12, 1, 12, 2, Q("10 mm")),
    Sketcher.Constraint("Distance", 14, Q("2 mm")),
    Sketcher.Constraint("DistanceY", 6, 1, 6, 2, Q("3.5 mm")),
    Sketcher.Constraint("DistanceY", -1, 1, 0, 3, Q("27 mm")),
    Sketcher.Constraint("DistanceY", -1, 1, 6, 2, Q("48 mm")),
    Sketcher.Constraint("DistanceX", -1, 1, 11, 2, Q("3 mm")),
    Sketcher.Constraint("DistanceX", 3, 2, 5, 2, Q("3 mm")),
    Sketcher.Constraint("DistanceX", 9, 1, 9, 2, Q("2.631579 mm")),
    Sketcher.Constraint("DistanceY", 10, 2, 10, 1, Q("11.349511 mm")),
    Sketcher.Constraint("DistanceX", -1, 1, 14, 2, Q("9.07126 mm")),
    Sketcher.Constraint("DistanceX", 15, 1, 13, 2, Q("5.155221 mm")),
])
sketch9.setExpression("Constraints[49]", "Params.sketch9_radius")
sketch9.setExpression("Constraints[50]", "Params.sketch9_width")
sketch9.setExpression("Constraints[51]", "Params.sketch9_height")
sketch9.setExpression("Constraints[52]", "Params.sketch9_height2")
sketch9.setExpression("Constraints[53]", "Params.sketch9_length")
pad8 = body.newObject("PartDesign::Pad", "Pad007")
pad8.Profile = sketch9
pad8.setExpression("Length", "Params.pad8_length")

doc.recompute()
